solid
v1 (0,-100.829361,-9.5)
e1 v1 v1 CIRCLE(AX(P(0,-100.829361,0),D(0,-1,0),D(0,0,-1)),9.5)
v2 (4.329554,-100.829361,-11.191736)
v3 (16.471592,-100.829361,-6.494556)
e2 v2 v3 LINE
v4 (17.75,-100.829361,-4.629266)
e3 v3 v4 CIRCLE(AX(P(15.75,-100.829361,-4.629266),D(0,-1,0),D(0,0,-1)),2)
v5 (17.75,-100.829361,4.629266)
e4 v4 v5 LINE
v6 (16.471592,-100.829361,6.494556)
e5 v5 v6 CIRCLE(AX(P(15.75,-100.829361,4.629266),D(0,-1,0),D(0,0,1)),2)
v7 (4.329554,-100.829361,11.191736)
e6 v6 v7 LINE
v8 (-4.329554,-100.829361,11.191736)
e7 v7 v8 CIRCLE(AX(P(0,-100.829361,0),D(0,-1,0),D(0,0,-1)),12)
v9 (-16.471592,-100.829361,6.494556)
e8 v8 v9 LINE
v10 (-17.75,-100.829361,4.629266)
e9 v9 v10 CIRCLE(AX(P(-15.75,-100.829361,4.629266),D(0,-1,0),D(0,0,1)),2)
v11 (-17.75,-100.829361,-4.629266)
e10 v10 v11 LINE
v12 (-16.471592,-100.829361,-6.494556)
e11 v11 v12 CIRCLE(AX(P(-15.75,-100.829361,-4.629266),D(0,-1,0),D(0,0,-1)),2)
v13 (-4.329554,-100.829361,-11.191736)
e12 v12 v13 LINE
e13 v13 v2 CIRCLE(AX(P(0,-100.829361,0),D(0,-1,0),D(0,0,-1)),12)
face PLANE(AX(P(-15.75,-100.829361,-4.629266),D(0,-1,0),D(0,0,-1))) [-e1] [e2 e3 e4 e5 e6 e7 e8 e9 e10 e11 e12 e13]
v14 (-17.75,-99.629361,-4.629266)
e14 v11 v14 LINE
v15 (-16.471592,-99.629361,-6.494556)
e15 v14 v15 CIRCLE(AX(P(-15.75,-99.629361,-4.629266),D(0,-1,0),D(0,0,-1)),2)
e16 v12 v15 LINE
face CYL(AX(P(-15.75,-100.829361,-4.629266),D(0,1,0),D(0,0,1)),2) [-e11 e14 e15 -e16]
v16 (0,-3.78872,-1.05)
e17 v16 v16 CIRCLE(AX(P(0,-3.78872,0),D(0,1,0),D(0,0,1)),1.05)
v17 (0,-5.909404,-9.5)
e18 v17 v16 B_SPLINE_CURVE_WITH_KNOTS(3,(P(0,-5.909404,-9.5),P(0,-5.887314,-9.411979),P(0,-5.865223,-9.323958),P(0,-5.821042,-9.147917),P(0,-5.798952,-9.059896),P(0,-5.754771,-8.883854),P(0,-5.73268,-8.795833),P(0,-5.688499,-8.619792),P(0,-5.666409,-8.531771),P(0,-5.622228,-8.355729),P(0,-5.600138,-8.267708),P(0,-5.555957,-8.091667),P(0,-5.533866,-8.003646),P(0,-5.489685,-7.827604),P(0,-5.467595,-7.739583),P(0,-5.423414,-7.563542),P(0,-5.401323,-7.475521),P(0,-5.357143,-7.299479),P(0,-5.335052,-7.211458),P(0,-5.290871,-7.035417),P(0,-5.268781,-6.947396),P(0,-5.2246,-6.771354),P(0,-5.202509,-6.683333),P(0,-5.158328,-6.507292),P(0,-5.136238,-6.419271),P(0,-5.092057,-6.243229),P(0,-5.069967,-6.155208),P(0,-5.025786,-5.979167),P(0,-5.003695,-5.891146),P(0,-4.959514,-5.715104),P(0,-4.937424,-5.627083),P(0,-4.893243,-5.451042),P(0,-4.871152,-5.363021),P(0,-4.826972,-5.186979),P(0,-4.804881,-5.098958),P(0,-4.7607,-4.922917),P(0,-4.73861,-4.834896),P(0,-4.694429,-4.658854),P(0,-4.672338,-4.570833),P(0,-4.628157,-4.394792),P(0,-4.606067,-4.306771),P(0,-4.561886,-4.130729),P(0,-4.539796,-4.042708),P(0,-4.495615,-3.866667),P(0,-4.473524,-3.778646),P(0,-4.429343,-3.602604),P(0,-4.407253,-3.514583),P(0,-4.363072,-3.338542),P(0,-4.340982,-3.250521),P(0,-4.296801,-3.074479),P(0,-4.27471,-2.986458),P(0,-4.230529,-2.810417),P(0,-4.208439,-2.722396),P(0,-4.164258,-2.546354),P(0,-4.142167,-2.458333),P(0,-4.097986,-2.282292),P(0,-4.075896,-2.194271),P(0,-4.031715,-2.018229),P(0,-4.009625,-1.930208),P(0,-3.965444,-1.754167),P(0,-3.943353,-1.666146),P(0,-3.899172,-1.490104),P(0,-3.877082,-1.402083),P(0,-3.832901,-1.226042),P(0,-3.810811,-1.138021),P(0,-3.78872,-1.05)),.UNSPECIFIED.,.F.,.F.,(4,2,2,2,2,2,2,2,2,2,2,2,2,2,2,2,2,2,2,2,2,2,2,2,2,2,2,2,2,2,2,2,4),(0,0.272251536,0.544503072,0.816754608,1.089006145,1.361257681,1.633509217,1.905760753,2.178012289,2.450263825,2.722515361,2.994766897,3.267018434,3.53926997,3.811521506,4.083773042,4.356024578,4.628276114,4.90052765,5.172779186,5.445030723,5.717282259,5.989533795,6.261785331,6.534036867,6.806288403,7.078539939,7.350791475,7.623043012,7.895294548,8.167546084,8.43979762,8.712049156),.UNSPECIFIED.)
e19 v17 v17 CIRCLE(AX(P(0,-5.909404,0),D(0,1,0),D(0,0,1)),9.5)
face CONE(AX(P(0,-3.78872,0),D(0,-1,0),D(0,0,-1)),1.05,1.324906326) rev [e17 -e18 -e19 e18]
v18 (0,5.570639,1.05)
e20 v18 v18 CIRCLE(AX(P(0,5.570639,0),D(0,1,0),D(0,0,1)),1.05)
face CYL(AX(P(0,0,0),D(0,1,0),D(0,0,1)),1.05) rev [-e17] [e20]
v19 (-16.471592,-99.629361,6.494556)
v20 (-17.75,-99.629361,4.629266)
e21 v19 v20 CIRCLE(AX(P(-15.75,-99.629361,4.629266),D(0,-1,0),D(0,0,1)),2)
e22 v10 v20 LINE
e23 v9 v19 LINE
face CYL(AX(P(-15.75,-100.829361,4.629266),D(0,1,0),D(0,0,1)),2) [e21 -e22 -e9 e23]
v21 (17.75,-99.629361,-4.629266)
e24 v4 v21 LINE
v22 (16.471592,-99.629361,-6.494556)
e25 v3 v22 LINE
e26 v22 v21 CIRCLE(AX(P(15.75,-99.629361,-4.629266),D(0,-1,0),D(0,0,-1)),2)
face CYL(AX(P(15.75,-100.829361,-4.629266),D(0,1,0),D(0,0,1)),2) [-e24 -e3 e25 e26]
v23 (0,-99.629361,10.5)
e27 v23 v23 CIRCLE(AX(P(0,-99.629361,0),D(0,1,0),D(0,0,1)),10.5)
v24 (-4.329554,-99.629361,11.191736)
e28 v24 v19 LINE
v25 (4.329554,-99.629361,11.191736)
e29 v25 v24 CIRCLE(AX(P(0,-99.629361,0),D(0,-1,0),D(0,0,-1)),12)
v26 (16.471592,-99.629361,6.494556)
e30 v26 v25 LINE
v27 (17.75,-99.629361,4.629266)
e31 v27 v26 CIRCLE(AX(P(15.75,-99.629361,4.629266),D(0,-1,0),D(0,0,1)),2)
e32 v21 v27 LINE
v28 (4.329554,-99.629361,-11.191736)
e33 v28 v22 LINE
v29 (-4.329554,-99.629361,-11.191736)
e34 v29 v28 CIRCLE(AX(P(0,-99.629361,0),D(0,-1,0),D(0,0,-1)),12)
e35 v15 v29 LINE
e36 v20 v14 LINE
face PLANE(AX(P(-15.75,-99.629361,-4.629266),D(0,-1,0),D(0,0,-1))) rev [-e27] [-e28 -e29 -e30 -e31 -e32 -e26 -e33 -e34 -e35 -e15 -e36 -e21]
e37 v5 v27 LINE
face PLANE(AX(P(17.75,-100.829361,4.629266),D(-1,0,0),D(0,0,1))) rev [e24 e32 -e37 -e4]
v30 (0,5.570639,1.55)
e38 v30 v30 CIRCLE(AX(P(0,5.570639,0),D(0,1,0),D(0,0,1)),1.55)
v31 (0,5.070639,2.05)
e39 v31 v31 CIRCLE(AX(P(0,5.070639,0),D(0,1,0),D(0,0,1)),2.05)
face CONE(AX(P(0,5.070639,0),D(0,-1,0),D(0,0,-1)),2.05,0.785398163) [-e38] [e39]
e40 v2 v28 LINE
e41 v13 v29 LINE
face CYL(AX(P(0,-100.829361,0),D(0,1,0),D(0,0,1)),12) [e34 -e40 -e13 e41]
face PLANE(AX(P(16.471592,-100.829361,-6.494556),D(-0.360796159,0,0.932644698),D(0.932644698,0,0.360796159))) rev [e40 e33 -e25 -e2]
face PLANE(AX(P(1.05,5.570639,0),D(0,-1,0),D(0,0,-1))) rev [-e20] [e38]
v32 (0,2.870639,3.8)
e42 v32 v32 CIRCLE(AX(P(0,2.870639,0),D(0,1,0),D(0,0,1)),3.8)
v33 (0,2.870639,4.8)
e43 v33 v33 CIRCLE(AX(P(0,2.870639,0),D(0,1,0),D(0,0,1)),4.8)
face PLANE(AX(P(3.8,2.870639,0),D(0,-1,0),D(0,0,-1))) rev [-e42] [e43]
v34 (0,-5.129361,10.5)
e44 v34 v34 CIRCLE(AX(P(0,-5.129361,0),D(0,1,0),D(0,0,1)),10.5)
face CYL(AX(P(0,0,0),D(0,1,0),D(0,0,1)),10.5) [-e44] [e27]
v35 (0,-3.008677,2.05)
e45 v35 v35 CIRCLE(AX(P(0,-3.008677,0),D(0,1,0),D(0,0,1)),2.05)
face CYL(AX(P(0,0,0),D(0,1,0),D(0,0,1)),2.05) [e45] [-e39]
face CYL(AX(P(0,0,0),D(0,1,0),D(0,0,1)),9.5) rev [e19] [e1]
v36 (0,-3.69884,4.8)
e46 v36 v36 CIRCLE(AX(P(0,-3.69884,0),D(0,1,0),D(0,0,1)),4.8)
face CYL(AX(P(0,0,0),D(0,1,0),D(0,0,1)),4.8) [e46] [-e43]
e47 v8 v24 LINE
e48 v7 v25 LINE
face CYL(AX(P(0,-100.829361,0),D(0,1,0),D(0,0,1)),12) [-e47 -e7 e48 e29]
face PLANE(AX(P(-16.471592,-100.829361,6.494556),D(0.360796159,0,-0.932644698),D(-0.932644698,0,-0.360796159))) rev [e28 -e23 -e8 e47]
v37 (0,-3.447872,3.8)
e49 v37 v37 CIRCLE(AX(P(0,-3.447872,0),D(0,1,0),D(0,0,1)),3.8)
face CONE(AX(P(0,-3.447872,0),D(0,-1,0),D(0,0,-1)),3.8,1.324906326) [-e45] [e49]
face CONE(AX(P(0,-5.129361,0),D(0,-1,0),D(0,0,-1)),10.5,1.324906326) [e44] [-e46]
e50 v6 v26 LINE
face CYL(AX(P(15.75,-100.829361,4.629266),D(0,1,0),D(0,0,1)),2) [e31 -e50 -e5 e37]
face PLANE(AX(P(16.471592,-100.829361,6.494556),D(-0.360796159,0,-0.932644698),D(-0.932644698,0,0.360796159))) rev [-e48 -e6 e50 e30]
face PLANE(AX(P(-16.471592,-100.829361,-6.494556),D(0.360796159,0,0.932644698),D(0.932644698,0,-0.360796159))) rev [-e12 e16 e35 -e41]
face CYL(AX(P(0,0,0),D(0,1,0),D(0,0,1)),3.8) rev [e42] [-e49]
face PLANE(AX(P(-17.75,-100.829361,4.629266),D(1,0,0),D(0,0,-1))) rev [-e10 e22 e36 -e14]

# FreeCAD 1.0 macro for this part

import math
import FreeCAD as App
import Part
import Sketcher
from FreeCAD import Vector
Q = App.Units.Quantity

doc = App.newDocument("Part")
body = doc.addObject("PartDesign::Body", "Body")

sketch1 = body.newObject("Sketcher::SketchObject", "Sketch")
sketch1.AttachmentSupport = (doc.getObject("XY_Plane"), [""])
sketch1.MapMode = "FlatFace"
sketch1.addGeometry([
    Part.LineSegment(Vector(1.6, 5.6, 0), Vector(1.1, 5.6, 0)),
    Part.LineSegment(Vector(1.1, 5.6, 0), Vector(1.1, -3.8, 0)),
    Part.LineSegment(Vector(1.1, -3.8, 0), Vector(9.5, -5.9, 0)),
    Part.LineSegment(Vector(9.5, -5.9, 0), Vector(9.5, -99.6, 0)),
    Part.LineSegment(Vector(9.5, -99.6, 0), Vector(10.5, -99.6, 0)),
    Part.LineSegment(Vector(10.5, -99.6, 0), Vector(10.5, -5.1, 0)),
    Part.LineSegment(Vector(10.5, -5.1, 0), Vector(4.8, -3.7, 0)),
    Part.LineSegment(Vector(4.8, -3.7, 0), Vector(4.8, 2.9, 0)),
    Part.LineSegment(Vector(4.8, 2.9, 0), Vector(3.8, 2.9, 0)),
    Part.LineSegment(Vector(3.8, 2.9, 0), Vector(3.8, -3.4, 0)),
    Part.LineSegment(Vector(3.8, -3.4, 0), Vector(2, -3, 0)),
    Part.LineSegment(Vector(2, -3, 0), Vector(2, 5.1, 0)),
    Part.LineSegment(Vector(2, 5.1, 0), Vector(1.6, 5.6, 0)),
], False)
sketch1.addConstraint([
    Sketcher.Constraint("Coincident", 0, 2, 1, 1),
    Sketcher.Constraint("Coincident", 1, 2, 2, 1),
    Sketcher.Constraint("Coincident", 2, 2, 3, 1),
    Sketcher.Constraint("Coincident", 3, 2, 4, 1),
    Sketcher.Constraint("Coincident", 4, 2, 5, 1),
    Sketcher.Constraint("Coincident", 5, 2, 6, 1),
    Sketcher.Constraint("Coincident", 6, 2, 7, 1),
    Sketcher.Constraint("Coincident", 7, 2, 8, 1),
    Sketcher.Constraint("Coincident", 8, 2, 9, 1),
    Sketcher.Constraint("Coincident", 9, 2, 10, 1),
    Sketcher.Constraint("Coincident", 10, 2, 11, 1),
    Sketcher.Constraint("Coincident", 11, 2, 12, 1),
    Sketcher.Constraint("Coincident", 12, 2, 0, 1),
    Sketcher.Constraint("Horizontal", 0),
    Sketcher.Constraint("Vertical", 1),
    Sketcher.Constraint("Vertical", 3),
    Sketcher.Constraint("Horizontal", 4),
    Sketcher.Constraint("Vertical", 5),
    Sketcher.Constraint("Vertical", 7),
    Sketcher.Constraint("Horizontal", 8),
    Sketcher.Constraint("Vertical", 9),
    Sketcher.Constraint("Vertical", 11),
    Sketcher.Constraint("Parallel", 2, 6),
    Sketcher.Constraint("Parallel", 6, 10),
    Sketcher.Constraint("Equal", 4, 8),
    Sketcher.Constraint("DistanceX", 4, 1, 4, 2, 1.0),
    Sketcher.Constraint("Angle", 12, Q("135 deg")),
    Sketcher.Constraint("DistanceX", 0, 2, 0, 1, 0.5),
    Sketcher.Constraint("DistanceY", 5, 1, 5, 2, 94.5),
    Sketcher.Constraint("DistanceY", 5, 2, 7, 2, 8.0),
    Sketcher.Constraint("DistanceX", 1, 2, 10, 2, 1.0),
    Sketcher.Constraint("DistanceX", -1, 1, 2, 2, 9.5),
    Sketcher.Constraint("DistanceX", -1, 1, 6, 2, 4.8),
    Sketcher.Constraint("DistanceY", 3, 2, 0, 2, 105.2),
    Sketcher.Constraint("DistanceX", -1, 1, 0, 2, 1.05),
    Sketcher.Constraint("DistanceY", 1, 2, 1, 1, 9.359359),
    Sketcher.Constraint("DistanceY", 7, 1, 7, 2, 6.569479),
    Sketcher.Constraint("DistanceY", 9, 2, 9, 1, 6.318511),
    Sketcher.Constraint("DistanceY", -1, 1, 0, 2, 5.570639),
])
revolution = body.newObject("PartDesign::Revolution", "Revolution")
revolution.Profile = sketch1
revolution.ReferenceAxis = (sketch1, ["V_Axis"])
revolution.Angle = 360

sketch2 = body.newObject("Sketcher::SketchObject", "Sketch001")
sketch2.AttachmentSupport = (doc.getObject("XZ_Plane"), [""])
sketch2.MapMode = "FlatFace"
sketch2.AttachmentOffset = App.Placement(Vector(0, 0, 99.629361), App.Rotation())
sketch2.addGeometry([
    Part.LineSegment(Vector(4.3, -11.2, 0), Vector(16.5, -6.5, 0)),
    Part.ArcOfCircle(Part.Circle(Vector(15.8, -4.6, 0), Vector(0, 0, 1), 2), math.radians(-69), math.radians(0)),
    Part.LineSegment(Vector(17.8, -4.6, 0), Vector(17.8, 4.6, 0)),
    Part.ArcOfCircle(Part.Circle(Vector(15.8, 4.6, 0), Vector(0, 0, 1), 2), math.radians(0), math.radians(69)),
    Part.LineSegment(Vector(16.5, 6.5, 0), Vector(4.3, 11.2, 0)),
    Part.ArcOfCircle(Part.Circle(Vector(0, 0, 0), Vector(0, 0, 1), 12), math.radians(69), math.radians(111)),
    Part.LineSegment(Vector(-4.3, 11.2, 0), Vector(-16.5, 6.5, 0)),
    Part.ArcOfCircle(Part.Circle(Vector(-15.8, 4.6, 0), Vector(0, 0, 1), 2), math.radians(111), math.radians(180)),
    Part.LineSegment(Vector(-17.8, 4.6, 0), Vector(-17.8, -4.6, 0)),
    Part.ArcOfCircle(Part.Circle(Vector(-15.8, -4.6, 0), Vector(0, 0, 1), 2), math.radians(180), math.radians(249)),
    Part.LineSegment(Vector(-16.5, -6.5, 0), Vector(-4.3, -11.2, 0)),
    Part.ArcOfCircle(Part.Circle(Vector(0, 0, 0), Vector(0, 0, 1), 12), math.radians(-111), math.radians(-69)),
    Part.Circle(Vector(0, 0, 0), Vector(0, 0, 1), 9.5),
], False)
sketch2.addConstraint([
    Sketcher.Constraint("Tangent", 0, 2, 1, 1),
    Sketcher.Constraint("Tangent", 1, 2, 2, 1),
    Sketcher.Constraint("Tangent", 2, 2, 3, 1),
    Sketcher.Constraint("Tangent", 3, 2, 4, 1),
    Sketcher.Constraint("Tangent", 4, 2, 5, 1),
    Sketcher.Constraint("Tangent", 5, 2, 6, 1),
    Sketcher.Constraint("Tangent", 6, 2, 7, 1),
    Sketcher.Constraint("Tangent", 7, 2, 8, 1),
    Sketcher.Constraint("Tangent", 8, 2, 9, 1),
    Sketcher.Constraint("Tangent", 9, 2, 10, 1),
    Sketcher.Constraint("Tangent", 10, 2, 11, 1),
    Sketcher.Constraint("Tangent", 11, 2, 0, 1),
    Sketcher.Constraint("Vertical", 2),
    Sketcher.Constraint("Vertical", 8),
    Sketcher.Constraint("Coincident", 5, 3, -1, 1),
    Sketcher.Constraint("Coincident", 11, 3, -1, 1),
    Sketcher.Constraint("Coincident", 12, 3, -1, 1),
    Sketcher.Constraint("Equal", 1, 3),
    Sketcher.Constraint("Equal", 3, 7),
    Sketcher.Constraint("Equal", 7, 9),
    Sketcher.Constraint("Equal", 5, 11),
    Sketcher.Constraint("Symmetric", 1, 3, 7, 3, -1, 1),
    Sketcher.Constraint("Parallel", 4, 10),
    Sketcher.Constraint("Horizontal", 3, 3, 7, 3),
    Sketcher.Constraint("Diameter", 12, 19.0),
    Sketcher.Constraint("Radius", 1, 2.0),
    Sketcher.Constraint("Radius", 5, 12.0),
    Sketcher.Constraint("DistanceX", 7, 3, 3, 3, 31.5),
    Sketcher.Constraint("DistanceY", 2, 1, 2, 2, 9.258532),
])
pad1 = body.newObject("PartDesign::Pad", "Pad")
pad1.Profile = sketch2
pad1.Length = 1.2

doc.recompute()
